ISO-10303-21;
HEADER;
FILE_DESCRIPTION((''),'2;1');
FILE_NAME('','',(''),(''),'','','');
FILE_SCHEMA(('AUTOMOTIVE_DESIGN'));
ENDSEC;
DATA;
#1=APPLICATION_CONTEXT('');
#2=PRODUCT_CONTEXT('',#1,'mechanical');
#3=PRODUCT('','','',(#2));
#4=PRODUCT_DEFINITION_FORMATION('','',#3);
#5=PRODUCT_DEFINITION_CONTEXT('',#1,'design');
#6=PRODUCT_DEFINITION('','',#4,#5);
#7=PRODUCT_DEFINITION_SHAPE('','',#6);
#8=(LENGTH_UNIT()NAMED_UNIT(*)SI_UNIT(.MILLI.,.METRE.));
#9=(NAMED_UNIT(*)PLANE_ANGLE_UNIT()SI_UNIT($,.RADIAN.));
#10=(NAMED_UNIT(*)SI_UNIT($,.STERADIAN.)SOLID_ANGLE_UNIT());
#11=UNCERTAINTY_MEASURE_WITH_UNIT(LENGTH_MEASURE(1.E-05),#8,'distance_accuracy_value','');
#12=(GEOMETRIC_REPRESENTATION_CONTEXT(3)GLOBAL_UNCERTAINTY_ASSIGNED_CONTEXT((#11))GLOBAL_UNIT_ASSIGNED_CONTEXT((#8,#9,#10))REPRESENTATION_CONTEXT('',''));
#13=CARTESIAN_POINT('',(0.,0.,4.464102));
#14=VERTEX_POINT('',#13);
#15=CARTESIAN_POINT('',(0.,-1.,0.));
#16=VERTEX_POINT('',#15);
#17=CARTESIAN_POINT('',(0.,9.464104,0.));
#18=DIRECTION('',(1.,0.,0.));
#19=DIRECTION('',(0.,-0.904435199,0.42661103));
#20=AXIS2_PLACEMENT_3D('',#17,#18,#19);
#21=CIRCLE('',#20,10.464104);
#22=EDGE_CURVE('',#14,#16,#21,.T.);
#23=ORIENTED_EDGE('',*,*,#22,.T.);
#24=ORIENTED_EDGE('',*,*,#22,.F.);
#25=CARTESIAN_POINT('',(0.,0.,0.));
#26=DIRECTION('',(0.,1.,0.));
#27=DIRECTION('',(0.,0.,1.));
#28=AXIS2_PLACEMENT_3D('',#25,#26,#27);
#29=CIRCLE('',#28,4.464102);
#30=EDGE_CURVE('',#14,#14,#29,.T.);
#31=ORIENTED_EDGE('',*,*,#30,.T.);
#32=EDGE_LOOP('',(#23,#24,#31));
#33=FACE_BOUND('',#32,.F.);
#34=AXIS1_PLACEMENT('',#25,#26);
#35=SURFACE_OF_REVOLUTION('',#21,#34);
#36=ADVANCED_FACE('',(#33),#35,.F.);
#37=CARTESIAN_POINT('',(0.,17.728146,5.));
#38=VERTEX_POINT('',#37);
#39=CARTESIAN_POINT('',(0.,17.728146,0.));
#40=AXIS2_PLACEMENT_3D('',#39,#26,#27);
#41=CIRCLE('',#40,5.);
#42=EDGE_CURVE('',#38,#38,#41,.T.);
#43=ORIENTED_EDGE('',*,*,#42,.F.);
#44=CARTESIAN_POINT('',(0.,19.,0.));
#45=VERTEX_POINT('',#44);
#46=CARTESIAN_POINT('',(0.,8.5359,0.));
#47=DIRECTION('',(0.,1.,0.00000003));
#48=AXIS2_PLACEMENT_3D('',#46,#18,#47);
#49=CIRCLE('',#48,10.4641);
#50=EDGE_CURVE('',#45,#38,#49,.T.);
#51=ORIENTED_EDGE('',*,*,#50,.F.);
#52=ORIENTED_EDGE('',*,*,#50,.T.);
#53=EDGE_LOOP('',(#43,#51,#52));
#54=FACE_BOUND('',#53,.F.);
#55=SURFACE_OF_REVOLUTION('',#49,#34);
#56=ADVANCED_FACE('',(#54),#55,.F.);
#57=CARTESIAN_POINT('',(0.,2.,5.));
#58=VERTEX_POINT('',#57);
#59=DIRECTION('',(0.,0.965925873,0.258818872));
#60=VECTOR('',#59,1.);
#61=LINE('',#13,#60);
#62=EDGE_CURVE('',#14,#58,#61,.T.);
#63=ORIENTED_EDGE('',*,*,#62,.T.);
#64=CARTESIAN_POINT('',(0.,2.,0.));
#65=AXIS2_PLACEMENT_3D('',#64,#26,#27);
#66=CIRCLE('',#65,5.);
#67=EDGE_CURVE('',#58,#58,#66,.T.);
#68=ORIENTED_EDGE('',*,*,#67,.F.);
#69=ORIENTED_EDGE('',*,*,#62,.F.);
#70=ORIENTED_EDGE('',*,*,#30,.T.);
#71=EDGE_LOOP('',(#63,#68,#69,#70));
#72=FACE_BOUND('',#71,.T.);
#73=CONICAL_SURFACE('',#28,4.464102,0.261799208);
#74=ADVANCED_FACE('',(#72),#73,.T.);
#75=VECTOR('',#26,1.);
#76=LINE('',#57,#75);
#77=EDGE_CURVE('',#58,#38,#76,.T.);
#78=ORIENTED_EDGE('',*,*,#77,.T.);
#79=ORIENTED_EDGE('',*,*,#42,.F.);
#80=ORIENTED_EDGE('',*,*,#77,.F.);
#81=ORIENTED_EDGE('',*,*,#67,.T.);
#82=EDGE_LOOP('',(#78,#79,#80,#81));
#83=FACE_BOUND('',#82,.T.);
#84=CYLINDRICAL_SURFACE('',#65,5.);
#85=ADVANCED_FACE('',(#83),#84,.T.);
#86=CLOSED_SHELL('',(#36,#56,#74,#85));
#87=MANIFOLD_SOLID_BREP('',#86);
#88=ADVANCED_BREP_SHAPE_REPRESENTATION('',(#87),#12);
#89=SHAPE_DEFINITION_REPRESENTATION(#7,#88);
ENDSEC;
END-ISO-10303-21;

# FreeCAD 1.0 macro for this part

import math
import FreeCAD as App
import Part
import Sketcher
from FreeCAD import Vector
Q = App.Units.Quantity

doc = App.newDocument("Part")
params = doc.addObject("Spreadsheet::Sheet", "Params")
for row, (alias, value) in enumerate([
    ("sketch1_width", "20 mm"),
    ("revolution_angle", "360 deg"),
], start=1):
    params.set(f"A{row}", alias)
    params.set(f"B{row}", "=" + value)
    params.setAlias(f"B{row}", alias)

body = doc.addObject("PartDesign::Body", "Body")

# Sketch on YZ plane
sketch1 = body.newObject("Sketcher::SketchObject", "Sketch")
sketch1.AttachmentSupport = (doc.getObject("YZ_Plane"), [""])
sketch1.MapMode = "FlatFace"
sketch1.addGeometry(Part.ArcOfCircle(Part.Circle(Vector(9.5, 0, 0), Vector(0, 0, 1), 10.5), math.radians(155), math.radians(180)), False)
sketch1.addGeometry(Part.LineSegment(Vector(-1, 0, 0), Vector(19, 0, 0)), False)
sketch1.addGeometry(Part.ArcOfCircle(Part.Circle(Vector(8.5, 0, 0), Vector(0, 0, 1), 10.5), math.radians(0), math.radians(29)), False)
sketch1.addGeometry(Part.LineSegment(Vector(17.7, 5, 0), Vector(2, 5, 0)), False)
sketch1.addGeometry(Part.LineSegment(Vector(2, 5, 0), Vector(0, 4.5, 0)), False)
sketch1.addConstraint(Sketcher.Constraint("Coincident", 0, 2, 1, 1))
sketch1.addConstraint(Sketcher.Constraint("Coincident", 1, 2, 2, 1))
sketch1.addConstraint(Sketcher.Constraint("Coincident", 2, 2, 3, 1))
sketch1.addConstraint(Sketcher.Constraint("Coincident", 3, 2, 4, 1))
sketch1.addConstraint(Sketcher.Constraint("Coincident", 4, 2, 0, 1))
sketch1.addConstraint(Sketcher.Constraint("Horizontal", 1))
sketch1.addConstraint(Sketcher.Constraint("Horizontal", 3))
sketch1.addConstraint(Sketcher.Constraint("PointOnObject", 0, 3, -1))
sketch1.addConstraint(Sketcher.Constraint("PointOnObject", 2, 3, -1))
sketch1.addConstraint(Sketcher.Constraint("PointOnObject", 0, 2, -1))
sketch1.addConstraint(Sketcher.Constraint("PointOnObject", 4, 2, -2))
sketch1.addConstraint(Sketcher.Constraint("DistanceX", 1, 1, 1, 2, 20.0))
sketch1.addConstraint(Sketcher.Constraint("Angle", 4, Q("-165.00001 deg")))
sketch1.addConstraint(Sketcher.Constraint("DistanceX", 0, 2, -1, 1, 1.0))
sketch1.addConstraint(Sketcher.Constraint("DistanceY", -1, 1, 2, 2, 5.0))
sketch1.addConstraint(Sketcher.Constraint("DistanceX", -1, 1, 3, 2, 2.0))
sketch1.addConstraint(Sketcher.Constraint("Radius", 2, 10.4641))
sketch1.setExpression("Constraints[11]", "Params.sketch1_width")
revolution = body.newObject("PartDesign::Revolution", "Revolution")
revolution.Profile = sketch1
revolution.ReferenceAxis = (sketch1, ["H_Axis"])
revolution.setExpression("Angle", "Params.revolution_angle")

doc.recompute()
